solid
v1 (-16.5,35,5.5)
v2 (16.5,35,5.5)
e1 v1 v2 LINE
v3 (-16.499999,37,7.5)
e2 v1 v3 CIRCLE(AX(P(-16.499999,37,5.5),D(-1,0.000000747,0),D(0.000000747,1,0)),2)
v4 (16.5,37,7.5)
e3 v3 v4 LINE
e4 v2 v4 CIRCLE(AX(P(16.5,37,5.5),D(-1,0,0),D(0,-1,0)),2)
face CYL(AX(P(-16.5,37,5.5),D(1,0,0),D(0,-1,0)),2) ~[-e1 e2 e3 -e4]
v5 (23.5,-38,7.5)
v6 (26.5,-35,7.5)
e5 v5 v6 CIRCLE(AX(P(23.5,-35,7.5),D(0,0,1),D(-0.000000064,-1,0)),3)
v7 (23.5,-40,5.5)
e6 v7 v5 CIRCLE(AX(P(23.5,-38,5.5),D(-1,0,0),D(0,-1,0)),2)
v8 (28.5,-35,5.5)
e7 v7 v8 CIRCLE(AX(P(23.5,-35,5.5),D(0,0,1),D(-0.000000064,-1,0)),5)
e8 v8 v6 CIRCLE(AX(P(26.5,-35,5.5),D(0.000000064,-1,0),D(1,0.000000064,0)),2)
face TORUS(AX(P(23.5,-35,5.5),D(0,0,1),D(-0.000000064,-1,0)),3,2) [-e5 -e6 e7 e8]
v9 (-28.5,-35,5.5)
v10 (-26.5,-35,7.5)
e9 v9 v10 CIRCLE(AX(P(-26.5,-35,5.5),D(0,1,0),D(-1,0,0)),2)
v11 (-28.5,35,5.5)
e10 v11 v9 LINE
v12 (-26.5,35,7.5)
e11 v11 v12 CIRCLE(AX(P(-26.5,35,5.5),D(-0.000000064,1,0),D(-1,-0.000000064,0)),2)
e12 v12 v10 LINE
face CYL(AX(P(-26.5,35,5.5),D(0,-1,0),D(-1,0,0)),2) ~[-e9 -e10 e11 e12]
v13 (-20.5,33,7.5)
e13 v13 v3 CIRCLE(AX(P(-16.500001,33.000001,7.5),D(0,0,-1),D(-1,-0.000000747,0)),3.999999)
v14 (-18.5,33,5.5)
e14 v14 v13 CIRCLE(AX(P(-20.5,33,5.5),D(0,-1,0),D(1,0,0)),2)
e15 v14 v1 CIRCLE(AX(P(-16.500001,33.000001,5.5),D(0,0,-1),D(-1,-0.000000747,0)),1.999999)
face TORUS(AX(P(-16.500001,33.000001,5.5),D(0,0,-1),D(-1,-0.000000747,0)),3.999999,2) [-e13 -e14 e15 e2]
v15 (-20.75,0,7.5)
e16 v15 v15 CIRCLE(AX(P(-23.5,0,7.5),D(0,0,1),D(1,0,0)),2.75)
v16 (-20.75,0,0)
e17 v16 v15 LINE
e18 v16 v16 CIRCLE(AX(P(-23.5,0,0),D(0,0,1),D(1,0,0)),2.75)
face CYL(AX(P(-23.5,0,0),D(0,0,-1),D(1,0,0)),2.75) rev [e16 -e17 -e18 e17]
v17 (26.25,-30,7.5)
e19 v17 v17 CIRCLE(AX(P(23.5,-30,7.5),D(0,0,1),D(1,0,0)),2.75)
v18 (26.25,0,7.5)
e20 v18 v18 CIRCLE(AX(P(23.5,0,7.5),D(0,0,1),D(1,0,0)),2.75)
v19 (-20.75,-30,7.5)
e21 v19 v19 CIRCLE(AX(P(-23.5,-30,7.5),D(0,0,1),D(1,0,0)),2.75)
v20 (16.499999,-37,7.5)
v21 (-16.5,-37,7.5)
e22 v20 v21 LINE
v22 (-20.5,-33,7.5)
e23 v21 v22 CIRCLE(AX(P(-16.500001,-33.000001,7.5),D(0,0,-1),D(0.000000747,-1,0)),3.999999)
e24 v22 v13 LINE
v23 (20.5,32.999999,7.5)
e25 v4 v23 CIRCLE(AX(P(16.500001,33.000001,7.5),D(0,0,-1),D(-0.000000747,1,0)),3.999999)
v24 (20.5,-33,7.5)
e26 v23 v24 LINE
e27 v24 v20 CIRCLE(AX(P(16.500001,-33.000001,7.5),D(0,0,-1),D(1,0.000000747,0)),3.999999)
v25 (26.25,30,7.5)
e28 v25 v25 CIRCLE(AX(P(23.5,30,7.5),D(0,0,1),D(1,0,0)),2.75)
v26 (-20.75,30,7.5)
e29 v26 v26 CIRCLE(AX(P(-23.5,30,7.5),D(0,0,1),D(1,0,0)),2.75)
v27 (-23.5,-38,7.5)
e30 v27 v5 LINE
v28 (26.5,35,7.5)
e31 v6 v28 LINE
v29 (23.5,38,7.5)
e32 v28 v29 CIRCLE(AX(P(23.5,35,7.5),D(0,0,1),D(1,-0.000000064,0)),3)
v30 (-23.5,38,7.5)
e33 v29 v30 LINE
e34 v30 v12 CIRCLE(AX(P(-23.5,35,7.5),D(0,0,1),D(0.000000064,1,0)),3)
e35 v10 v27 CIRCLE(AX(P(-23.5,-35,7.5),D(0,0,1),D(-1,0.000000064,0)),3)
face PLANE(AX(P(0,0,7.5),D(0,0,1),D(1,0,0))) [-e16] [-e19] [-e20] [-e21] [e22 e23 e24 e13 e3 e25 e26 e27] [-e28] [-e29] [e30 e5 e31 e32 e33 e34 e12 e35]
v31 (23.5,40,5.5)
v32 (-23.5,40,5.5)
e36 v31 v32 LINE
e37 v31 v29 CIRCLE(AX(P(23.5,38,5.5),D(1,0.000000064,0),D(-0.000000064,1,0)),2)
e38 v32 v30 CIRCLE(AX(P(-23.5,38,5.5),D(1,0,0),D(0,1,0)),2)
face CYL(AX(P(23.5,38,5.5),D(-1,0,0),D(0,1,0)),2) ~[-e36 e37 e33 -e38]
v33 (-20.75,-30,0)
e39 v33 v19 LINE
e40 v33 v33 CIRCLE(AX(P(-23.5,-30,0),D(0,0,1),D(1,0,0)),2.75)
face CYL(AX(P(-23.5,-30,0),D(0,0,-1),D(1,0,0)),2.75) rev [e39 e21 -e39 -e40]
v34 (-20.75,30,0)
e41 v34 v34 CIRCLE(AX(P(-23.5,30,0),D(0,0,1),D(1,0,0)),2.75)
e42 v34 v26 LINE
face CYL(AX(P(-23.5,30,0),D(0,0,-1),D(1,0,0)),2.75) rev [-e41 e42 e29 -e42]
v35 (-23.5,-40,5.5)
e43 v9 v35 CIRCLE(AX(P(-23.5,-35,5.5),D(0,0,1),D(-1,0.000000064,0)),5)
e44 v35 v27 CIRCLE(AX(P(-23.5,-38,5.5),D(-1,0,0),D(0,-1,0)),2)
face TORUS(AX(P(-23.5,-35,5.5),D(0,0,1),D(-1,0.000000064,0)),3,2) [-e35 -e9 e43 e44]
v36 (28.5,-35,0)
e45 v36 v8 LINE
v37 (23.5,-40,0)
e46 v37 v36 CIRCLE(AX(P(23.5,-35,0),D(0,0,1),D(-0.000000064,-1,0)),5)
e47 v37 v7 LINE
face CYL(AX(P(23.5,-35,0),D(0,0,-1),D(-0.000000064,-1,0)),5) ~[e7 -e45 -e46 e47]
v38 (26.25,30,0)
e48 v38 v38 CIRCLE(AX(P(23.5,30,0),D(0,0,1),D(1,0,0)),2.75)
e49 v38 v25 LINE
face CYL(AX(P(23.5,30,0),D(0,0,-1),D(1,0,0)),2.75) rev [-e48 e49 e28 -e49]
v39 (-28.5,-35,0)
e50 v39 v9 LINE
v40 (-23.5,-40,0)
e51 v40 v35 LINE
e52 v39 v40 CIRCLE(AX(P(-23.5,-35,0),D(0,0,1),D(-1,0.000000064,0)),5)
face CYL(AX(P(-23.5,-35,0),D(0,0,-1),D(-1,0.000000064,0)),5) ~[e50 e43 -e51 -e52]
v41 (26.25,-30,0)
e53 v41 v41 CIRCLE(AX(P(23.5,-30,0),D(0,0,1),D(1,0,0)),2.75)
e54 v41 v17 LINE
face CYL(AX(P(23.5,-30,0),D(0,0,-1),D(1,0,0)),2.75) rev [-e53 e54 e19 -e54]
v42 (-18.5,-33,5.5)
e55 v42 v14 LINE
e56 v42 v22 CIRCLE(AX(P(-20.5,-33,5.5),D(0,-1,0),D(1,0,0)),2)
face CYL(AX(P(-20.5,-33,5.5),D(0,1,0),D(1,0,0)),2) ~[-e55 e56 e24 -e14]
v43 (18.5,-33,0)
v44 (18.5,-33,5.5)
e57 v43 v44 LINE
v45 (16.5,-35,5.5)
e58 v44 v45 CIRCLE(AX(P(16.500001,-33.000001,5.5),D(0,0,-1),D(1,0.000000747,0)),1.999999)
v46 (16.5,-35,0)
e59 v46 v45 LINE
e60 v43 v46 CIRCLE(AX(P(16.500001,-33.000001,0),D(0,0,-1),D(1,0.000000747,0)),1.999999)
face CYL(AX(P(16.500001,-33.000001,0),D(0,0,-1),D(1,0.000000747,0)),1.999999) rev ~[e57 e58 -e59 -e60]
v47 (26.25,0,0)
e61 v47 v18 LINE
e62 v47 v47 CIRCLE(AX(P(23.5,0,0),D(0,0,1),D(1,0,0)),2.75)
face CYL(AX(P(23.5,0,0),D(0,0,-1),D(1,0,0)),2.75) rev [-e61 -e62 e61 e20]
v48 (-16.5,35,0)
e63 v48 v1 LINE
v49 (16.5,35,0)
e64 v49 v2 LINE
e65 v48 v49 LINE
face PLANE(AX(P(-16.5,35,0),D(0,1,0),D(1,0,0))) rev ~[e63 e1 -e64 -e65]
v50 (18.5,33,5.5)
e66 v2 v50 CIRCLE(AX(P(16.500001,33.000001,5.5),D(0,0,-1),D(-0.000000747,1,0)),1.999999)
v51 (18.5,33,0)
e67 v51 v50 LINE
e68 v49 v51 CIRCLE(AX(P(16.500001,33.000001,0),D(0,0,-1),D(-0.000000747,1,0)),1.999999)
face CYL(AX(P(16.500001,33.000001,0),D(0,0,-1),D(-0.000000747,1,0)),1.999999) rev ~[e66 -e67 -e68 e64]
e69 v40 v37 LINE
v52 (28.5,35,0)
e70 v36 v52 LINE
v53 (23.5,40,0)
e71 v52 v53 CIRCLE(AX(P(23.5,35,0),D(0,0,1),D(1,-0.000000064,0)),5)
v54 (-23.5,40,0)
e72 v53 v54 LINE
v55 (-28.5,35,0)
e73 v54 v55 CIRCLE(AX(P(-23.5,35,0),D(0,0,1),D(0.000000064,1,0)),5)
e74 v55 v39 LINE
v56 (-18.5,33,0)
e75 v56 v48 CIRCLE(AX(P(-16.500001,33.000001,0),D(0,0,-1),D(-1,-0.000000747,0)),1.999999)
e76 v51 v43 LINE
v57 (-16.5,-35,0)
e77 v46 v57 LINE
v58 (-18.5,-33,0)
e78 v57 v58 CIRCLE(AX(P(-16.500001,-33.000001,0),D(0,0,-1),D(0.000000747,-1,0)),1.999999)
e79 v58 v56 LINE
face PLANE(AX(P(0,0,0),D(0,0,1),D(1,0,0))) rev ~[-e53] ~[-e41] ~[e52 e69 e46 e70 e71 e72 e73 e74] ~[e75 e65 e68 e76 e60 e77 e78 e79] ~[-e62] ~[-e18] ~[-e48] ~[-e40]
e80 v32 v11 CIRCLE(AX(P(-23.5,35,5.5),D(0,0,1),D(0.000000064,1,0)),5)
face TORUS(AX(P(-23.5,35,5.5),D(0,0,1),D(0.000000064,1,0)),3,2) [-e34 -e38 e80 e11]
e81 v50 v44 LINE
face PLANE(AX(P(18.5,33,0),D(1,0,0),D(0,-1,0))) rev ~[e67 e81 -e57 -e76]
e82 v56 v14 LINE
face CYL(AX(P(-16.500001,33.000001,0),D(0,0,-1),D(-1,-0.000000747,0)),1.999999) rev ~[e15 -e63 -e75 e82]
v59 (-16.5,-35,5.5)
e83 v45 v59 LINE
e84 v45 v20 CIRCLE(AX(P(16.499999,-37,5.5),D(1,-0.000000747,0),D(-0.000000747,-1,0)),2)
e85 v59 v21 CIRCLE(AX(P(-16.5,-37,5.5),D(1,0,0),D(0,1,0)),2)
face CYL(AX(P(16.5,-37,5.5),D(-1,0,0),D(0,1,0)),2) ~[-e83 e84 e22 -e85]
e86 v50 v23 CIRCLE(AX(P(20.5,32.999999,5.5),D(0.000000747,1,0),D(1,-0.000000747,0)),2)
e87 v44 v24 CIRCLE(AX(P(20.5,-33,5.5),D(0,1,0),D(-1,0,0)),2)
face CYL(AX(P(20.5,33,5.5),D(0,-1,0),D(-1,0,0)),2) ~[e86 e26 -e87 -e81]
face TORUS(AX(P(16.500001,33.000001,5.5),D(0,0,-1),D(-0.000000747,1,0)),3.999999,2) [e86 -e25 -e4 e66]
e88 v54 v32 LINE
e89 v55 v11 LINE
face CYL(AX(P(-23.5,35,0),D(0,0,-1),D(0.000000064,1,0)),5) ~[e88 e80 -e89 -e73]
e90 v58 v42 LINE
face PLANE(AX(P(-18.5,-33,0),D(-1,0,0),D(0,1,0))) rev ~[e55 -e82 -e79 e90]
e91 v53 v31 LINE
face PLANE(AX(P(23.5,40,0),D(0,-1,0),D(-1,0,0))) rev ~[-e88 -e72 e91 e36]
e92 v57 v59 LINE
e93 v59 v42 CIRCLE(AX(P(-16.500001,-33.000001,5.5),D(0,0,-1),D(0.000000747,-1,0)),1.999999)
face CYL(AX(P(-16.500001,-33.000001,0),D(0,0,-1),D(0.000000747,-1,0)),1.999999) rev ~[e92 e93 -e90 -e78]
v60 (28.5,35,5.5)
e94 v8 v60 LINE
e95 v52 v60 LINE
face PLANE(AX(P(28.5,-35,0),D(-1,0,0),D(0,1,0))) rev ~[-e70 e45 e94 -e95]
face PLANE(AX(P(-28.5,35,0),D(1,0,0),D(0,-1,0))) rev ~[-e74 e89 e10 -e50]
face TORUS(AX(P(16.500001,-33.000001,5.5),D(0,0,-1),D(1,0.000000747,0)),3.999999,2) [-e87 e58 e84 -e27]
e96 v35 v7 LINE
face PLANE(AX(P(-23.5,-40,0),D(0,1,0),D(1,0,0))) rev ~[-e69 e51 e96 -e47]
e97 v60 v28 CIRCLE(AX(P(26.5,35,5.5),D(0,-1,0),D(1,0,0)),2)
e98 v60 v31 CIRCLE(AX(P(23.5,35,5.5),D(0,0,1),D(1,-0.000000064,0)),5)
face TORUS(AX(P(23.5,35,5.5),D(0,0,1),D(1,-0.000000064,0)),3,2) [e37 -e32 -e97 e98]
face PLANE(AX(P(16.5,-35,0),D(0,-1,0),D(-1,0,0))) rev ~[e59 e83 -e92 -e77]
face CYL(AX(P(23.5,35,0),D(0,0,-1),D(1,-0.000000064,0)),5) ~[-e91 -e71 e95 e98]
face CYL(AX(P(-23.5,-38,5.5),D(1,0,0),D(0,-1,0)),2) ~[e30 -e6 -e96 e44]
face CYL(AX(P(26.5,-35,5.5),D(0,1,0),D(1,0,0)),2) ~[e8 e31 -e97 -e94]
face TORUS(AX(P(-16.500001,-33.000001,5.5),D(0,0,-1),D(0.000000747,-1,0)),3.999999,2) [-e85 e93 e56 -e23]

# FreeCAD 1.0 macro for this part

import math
import FreeCAD as App
import Part
import Sketcher

V = App.Vector
Q = App.Units.Quantity


def edges_at(feature, points):
    """Names of the edges that pass closest to the given points."""
    edges = feature.Shape.Edges
    near = lambda p: min(range(len(edges)), key=lambda i: edges[i].distToShape(Part.Vertex(*p))[0])
    return sorted({f"Edge{near(p) + 1}" for p in points})

doc = App.newDocument("Part")
body = doc.addObject("PartDesign::Body", "Body")

# Sketch on XY plane
sketch1 = body.newObject("Sketcher::SketchObject", "Sketch")
sketch1.AttachmentSupport = (doc.getObject("XY_Plane"), [""])
sketch1.MapMode = "FlatFace"
sketch1.addGeometry(Part.LineSegment(V(23.5, 40, 0), V(-23.5, 40, 0)), False)
sketch1.addGeometry(Part.ArcOfCircle(Part.Circle(V(-23.5, 35, 0), V(0, 0, 1), 5), math.radians(89.999996), math.radians(180.000004)), False)
sketch1.addGeometry(Part.LineSegment(V(-28.5, 35, 0), V(-28.5, -35, 0)), False)
sketch1.addGeometry(Part.ArcOfCircle(Part.Circle(V(-23.5, -35, 0), V(0, 0, 1), 5), math.radians(179.999996), math.radians(270.000004)), False)
sketch1.addGeometry(Part.LineSegment(V(-23.5, -40, 0), V(23.5, -40, 0)), False)
sketch1.addGeometry(Part.ArcOfCircle(Part.Circle(V(23.5, -35, 0), V(0, 0, 1), 5), math.radians(-90.000004), math.radians(0.000004)), False)
sketch1.addGeometry(Part.LineSegment(V(28.5, -35, 0), V(28.5, 35, 0)), False)
sketch1.addGeometry(Part.ArcOfCircle(Part.Circle(V(23.5, 35, 0), V(0, 0, 1), 5), math.radians(-0.000004), math.radians(90.000004)), False)
sketch1.addGeometry(Part.Circle(V(-23.5, -30, 0), V(0, 0, 1), 2.75), False)
sketch1.addGeometry(Part.Circle(V(23.5, -30, 0), V(0, 0, 1), 2.75), False)
sketch1.addGeometry(Part.Circle(V(-23.5, 0, 0), V(0, 0, 1), 2.75), False)
sketch1.addGeometry(Part.Circle(V(-23.5, 30, 0), V(0, 0, 1), 2.75), False)
sketch1.addGeometry(Part.LineSegment(V(-18.5, -33, 0), V(-18.5, 33, 0)), False)
sketch1.addGeometry(Part.ArcOfCircle(Part.Circle(V(-16.500001, 33.000001, 0), V(0, 0, 1), 1.999999), math.radians(89.999957), math.radians(180.000043)), False)
sketch1.addGeometry(Part.LineSegment(V(-16.5, 35, 0), V(16.5, 35, 0)), False)
sketch1.addGeometry(Part.ArcOfCircle(Part.Circle(V(16.500001, 33.000001, 0), V(0, 0, 1), 1.999999), math.radians(-0.000043), math.radians(90.000043)), False)
sketch1.addGeometry(Part.LineSegment(V(18.5, 33, 0), V(18.5, -33, 0)), False)
sketch1.addGeometry(Part.ArcOfCircle(Part.Circle(V(16.500001, -33.000001, 0), V(0, 0, 1), 1.999999), math.radians(-90.000043), math.radians(0.000043)), False)
sketch1.addGeometry(Part.LineSegment(V(16.5, -35, 0), V(-16.5, -35, 0)), False)
sketch1.addGeometry(Part.ArcOfCircle(Part.Circle(V(-16.500001, -33.000001, 0), V(0, 0, 1), 1.999999), math.radians(179.999957), math.radians(270.000043)), False)
sketch1.addGeometry(Part.Circle(V(23.5, 0, 0), V(0, 0, 1), 2.75), False)
sketch1.addGeometry(Part.Circle(V(23.5, 30, 0), V(0, 0, 1), 2.75), False)
sketch1.addConstraint(Sketcher.Constraint("Tangent", 0, 2, 1, 1))
sketch1.addConstraint(Sketcher.Constraint("Tangent", 1, 2, 2, 1))
sketch1.addConstraint(Sketcher.Constraint("Tangent", 2, 2, 3, 1))
sketch1.addConstraint(Sketcher.Constraint("Tangent", 3, 2, 4, 1))
sketch1.addConstraint(Sketcher.Constraint("Tangent", 4, 2, 5, 1))
sketch1.addConstraint(Sketcher.Constraint("Tangent", 5, 2, 6, 1))
sketch1.addConstraint(Sketcher.Constraint("Tangent", 6, 2, 7, 1))
sketch1.addConstraint(Sketcher.Constraint("Tangent", 7, 2, 0, 1))
sketch1.addConstraint(Sketcher.Constraint("Tangent", 12, 2, 13, 2))
sketch1.addConstraint(Sketcher.Constraint("Tangent", 13, 1, 14, 1))
sketch1.addConstraint(Sketcher.Constraint("Tangent", 14, 2, 15, 2))
sketch1.addConstraint(Sketcher.Constraint("Tangent", 15, 1, 16, 1))
sketch1.addConstraint(Sketcher.Constraint("Tangent", 16, 2, 17, 2))
sketch1.addConstraint(Sketcher.Constraint("Tangent", 17, 1, 18, 1))
sketch1.addConstraint(Sketcher.Constraint("Tangent", 18, 2, 19, 2))
sketch1.addConstraint(Sketcher.Constraint("Tangent", 19, 1, 12, 1))
sketch1.addConstraint(Sketcher.Constraint("Horizontal", 0))
sketch1.addConstraint(Sketcher.Constraint("Vertical", 2))
sketch1.addConstraint(Sketcher.Constraint("Horizontal", 4))
sketch1.addConstraint(Sketcher.Constraint("Vertical", 6))
sketch1.addConstraint(Sketcher.Constraint("Vertical", 12))
sketch1.addConstraint(Sketcher.Constraint("Horizontal", 14))
sketch1.addConstraint(Sketcher.Constraint("Vertical", 16))
sketch1.addConstraint(Sketcher.Constraint("Horizontal", 18))
sketch1.addConstraint(Sketcher.Constraint("Equal", 1, 3))
sketch1.addConstraint(Sketcher.Constraint("Equal", 3, 5))
sketch1.addConstraint(Sketcher.Constraint("Equal", 5, 7))
sketch1.addConstraint(Sketcher.Constraint("Equal", 8, 9))
sketch1.addConstraint(Sketcher.Constraint("Equal", 9, 10))
sketch1.addConstraint(Sketcher.Constraint("Equal", 10, 11))
sketch1.addConstraint(Sketcher.Constraint("Equal", 13, 15))
sketch1.addConstraint(Sketcher.Constraint("Equal", 15, 17))
sketch1.addConstraint(Sketcher.Constraint("Equal", 17, 19))
sketch1.addConstraint(Sketcher.Constraint("Equal", 11, 20))
sketch1.addConstraint(Sketcher.Constraint("Equal", 20, 21))
sketch1.addConstraint(Sketcher.Constraint("Symmetric", 1, 3, 5, 3, -1, 1))
sketch1.addConstraint(Sketcher.Constraint("Symmetric", 9, 3, 11, 3, -1, 1))
sketch1.addConstraint(Sketcher.Constraint("Symmetric", 13, 3, 17, 3, -1, 1))
sketch1.addConstraint(Sketcher.Constraint("Symmetric", 10, 3, 20, 3, -1, 1))
sketch1.addConstraint(Sketcher.Constraint("Symmetric", 8, 3, 21, 3, -1, 1))
sketch1.addConstraint(Sketcher.Constraint("Symmetric", 8, 3, 9, 3, -2))
sketch1.addConstraint(Sketcher.Constraint("PointOnObject", 10, 3, -1))
sketch1.addConstraint(Sketcher.Constraint("Horizontal", 6, 2, 13, 1))
sketch1.addConstraint(Sketcher.Constraint("Vertical", 3, 3, 8, 3))
sketch1.addConstraint(Sketcher.Constraint("Vertical", 8, 3, 10, 3))
sketch1.addConstraint(Sketcher.Constraint("Radius", 1, Q("5 mm")))
sketch1.addConstraint(Sketcher.Constraint("Radius", 13, Q("1.999999 mm")))
sketch1.addConstraint(Sketcher.Constraint("Diameter", 8, Q("5.5 mm")))
sketch1.addConstraint(Sketcher.Constraint("DistanceX", 0, 2, 0, 1, Q("47 mm")))
sketch1.addConstraint(Sketcher.Constraint("DistanceX", 14, 1, 14, 2, Q("33 mm")))
sketch1.addConstraint(Sketcher.Constraint("DistanceY", 2, 2, 2, 1, Q("70 mm")))
sketch1.addConstraint(Sketcher.Constraint("DistanceY", 8, 3, -1, 1, Q("30 mm")))
pad1 = body.newObject("PartDesign::Pad", "Pad")
pad1.Profile = sketch1
pad1.Length = 7.5
doc.recompute()

fillet = body.newObject("PartDesign::Fillet", "Fillet")
fillet.Base = (pad1, edges_at(pad1, [(-18.5, 0, 7.5), (0, -40, 7.5)]))
fillet.Radius = 2

doc.recompute()
